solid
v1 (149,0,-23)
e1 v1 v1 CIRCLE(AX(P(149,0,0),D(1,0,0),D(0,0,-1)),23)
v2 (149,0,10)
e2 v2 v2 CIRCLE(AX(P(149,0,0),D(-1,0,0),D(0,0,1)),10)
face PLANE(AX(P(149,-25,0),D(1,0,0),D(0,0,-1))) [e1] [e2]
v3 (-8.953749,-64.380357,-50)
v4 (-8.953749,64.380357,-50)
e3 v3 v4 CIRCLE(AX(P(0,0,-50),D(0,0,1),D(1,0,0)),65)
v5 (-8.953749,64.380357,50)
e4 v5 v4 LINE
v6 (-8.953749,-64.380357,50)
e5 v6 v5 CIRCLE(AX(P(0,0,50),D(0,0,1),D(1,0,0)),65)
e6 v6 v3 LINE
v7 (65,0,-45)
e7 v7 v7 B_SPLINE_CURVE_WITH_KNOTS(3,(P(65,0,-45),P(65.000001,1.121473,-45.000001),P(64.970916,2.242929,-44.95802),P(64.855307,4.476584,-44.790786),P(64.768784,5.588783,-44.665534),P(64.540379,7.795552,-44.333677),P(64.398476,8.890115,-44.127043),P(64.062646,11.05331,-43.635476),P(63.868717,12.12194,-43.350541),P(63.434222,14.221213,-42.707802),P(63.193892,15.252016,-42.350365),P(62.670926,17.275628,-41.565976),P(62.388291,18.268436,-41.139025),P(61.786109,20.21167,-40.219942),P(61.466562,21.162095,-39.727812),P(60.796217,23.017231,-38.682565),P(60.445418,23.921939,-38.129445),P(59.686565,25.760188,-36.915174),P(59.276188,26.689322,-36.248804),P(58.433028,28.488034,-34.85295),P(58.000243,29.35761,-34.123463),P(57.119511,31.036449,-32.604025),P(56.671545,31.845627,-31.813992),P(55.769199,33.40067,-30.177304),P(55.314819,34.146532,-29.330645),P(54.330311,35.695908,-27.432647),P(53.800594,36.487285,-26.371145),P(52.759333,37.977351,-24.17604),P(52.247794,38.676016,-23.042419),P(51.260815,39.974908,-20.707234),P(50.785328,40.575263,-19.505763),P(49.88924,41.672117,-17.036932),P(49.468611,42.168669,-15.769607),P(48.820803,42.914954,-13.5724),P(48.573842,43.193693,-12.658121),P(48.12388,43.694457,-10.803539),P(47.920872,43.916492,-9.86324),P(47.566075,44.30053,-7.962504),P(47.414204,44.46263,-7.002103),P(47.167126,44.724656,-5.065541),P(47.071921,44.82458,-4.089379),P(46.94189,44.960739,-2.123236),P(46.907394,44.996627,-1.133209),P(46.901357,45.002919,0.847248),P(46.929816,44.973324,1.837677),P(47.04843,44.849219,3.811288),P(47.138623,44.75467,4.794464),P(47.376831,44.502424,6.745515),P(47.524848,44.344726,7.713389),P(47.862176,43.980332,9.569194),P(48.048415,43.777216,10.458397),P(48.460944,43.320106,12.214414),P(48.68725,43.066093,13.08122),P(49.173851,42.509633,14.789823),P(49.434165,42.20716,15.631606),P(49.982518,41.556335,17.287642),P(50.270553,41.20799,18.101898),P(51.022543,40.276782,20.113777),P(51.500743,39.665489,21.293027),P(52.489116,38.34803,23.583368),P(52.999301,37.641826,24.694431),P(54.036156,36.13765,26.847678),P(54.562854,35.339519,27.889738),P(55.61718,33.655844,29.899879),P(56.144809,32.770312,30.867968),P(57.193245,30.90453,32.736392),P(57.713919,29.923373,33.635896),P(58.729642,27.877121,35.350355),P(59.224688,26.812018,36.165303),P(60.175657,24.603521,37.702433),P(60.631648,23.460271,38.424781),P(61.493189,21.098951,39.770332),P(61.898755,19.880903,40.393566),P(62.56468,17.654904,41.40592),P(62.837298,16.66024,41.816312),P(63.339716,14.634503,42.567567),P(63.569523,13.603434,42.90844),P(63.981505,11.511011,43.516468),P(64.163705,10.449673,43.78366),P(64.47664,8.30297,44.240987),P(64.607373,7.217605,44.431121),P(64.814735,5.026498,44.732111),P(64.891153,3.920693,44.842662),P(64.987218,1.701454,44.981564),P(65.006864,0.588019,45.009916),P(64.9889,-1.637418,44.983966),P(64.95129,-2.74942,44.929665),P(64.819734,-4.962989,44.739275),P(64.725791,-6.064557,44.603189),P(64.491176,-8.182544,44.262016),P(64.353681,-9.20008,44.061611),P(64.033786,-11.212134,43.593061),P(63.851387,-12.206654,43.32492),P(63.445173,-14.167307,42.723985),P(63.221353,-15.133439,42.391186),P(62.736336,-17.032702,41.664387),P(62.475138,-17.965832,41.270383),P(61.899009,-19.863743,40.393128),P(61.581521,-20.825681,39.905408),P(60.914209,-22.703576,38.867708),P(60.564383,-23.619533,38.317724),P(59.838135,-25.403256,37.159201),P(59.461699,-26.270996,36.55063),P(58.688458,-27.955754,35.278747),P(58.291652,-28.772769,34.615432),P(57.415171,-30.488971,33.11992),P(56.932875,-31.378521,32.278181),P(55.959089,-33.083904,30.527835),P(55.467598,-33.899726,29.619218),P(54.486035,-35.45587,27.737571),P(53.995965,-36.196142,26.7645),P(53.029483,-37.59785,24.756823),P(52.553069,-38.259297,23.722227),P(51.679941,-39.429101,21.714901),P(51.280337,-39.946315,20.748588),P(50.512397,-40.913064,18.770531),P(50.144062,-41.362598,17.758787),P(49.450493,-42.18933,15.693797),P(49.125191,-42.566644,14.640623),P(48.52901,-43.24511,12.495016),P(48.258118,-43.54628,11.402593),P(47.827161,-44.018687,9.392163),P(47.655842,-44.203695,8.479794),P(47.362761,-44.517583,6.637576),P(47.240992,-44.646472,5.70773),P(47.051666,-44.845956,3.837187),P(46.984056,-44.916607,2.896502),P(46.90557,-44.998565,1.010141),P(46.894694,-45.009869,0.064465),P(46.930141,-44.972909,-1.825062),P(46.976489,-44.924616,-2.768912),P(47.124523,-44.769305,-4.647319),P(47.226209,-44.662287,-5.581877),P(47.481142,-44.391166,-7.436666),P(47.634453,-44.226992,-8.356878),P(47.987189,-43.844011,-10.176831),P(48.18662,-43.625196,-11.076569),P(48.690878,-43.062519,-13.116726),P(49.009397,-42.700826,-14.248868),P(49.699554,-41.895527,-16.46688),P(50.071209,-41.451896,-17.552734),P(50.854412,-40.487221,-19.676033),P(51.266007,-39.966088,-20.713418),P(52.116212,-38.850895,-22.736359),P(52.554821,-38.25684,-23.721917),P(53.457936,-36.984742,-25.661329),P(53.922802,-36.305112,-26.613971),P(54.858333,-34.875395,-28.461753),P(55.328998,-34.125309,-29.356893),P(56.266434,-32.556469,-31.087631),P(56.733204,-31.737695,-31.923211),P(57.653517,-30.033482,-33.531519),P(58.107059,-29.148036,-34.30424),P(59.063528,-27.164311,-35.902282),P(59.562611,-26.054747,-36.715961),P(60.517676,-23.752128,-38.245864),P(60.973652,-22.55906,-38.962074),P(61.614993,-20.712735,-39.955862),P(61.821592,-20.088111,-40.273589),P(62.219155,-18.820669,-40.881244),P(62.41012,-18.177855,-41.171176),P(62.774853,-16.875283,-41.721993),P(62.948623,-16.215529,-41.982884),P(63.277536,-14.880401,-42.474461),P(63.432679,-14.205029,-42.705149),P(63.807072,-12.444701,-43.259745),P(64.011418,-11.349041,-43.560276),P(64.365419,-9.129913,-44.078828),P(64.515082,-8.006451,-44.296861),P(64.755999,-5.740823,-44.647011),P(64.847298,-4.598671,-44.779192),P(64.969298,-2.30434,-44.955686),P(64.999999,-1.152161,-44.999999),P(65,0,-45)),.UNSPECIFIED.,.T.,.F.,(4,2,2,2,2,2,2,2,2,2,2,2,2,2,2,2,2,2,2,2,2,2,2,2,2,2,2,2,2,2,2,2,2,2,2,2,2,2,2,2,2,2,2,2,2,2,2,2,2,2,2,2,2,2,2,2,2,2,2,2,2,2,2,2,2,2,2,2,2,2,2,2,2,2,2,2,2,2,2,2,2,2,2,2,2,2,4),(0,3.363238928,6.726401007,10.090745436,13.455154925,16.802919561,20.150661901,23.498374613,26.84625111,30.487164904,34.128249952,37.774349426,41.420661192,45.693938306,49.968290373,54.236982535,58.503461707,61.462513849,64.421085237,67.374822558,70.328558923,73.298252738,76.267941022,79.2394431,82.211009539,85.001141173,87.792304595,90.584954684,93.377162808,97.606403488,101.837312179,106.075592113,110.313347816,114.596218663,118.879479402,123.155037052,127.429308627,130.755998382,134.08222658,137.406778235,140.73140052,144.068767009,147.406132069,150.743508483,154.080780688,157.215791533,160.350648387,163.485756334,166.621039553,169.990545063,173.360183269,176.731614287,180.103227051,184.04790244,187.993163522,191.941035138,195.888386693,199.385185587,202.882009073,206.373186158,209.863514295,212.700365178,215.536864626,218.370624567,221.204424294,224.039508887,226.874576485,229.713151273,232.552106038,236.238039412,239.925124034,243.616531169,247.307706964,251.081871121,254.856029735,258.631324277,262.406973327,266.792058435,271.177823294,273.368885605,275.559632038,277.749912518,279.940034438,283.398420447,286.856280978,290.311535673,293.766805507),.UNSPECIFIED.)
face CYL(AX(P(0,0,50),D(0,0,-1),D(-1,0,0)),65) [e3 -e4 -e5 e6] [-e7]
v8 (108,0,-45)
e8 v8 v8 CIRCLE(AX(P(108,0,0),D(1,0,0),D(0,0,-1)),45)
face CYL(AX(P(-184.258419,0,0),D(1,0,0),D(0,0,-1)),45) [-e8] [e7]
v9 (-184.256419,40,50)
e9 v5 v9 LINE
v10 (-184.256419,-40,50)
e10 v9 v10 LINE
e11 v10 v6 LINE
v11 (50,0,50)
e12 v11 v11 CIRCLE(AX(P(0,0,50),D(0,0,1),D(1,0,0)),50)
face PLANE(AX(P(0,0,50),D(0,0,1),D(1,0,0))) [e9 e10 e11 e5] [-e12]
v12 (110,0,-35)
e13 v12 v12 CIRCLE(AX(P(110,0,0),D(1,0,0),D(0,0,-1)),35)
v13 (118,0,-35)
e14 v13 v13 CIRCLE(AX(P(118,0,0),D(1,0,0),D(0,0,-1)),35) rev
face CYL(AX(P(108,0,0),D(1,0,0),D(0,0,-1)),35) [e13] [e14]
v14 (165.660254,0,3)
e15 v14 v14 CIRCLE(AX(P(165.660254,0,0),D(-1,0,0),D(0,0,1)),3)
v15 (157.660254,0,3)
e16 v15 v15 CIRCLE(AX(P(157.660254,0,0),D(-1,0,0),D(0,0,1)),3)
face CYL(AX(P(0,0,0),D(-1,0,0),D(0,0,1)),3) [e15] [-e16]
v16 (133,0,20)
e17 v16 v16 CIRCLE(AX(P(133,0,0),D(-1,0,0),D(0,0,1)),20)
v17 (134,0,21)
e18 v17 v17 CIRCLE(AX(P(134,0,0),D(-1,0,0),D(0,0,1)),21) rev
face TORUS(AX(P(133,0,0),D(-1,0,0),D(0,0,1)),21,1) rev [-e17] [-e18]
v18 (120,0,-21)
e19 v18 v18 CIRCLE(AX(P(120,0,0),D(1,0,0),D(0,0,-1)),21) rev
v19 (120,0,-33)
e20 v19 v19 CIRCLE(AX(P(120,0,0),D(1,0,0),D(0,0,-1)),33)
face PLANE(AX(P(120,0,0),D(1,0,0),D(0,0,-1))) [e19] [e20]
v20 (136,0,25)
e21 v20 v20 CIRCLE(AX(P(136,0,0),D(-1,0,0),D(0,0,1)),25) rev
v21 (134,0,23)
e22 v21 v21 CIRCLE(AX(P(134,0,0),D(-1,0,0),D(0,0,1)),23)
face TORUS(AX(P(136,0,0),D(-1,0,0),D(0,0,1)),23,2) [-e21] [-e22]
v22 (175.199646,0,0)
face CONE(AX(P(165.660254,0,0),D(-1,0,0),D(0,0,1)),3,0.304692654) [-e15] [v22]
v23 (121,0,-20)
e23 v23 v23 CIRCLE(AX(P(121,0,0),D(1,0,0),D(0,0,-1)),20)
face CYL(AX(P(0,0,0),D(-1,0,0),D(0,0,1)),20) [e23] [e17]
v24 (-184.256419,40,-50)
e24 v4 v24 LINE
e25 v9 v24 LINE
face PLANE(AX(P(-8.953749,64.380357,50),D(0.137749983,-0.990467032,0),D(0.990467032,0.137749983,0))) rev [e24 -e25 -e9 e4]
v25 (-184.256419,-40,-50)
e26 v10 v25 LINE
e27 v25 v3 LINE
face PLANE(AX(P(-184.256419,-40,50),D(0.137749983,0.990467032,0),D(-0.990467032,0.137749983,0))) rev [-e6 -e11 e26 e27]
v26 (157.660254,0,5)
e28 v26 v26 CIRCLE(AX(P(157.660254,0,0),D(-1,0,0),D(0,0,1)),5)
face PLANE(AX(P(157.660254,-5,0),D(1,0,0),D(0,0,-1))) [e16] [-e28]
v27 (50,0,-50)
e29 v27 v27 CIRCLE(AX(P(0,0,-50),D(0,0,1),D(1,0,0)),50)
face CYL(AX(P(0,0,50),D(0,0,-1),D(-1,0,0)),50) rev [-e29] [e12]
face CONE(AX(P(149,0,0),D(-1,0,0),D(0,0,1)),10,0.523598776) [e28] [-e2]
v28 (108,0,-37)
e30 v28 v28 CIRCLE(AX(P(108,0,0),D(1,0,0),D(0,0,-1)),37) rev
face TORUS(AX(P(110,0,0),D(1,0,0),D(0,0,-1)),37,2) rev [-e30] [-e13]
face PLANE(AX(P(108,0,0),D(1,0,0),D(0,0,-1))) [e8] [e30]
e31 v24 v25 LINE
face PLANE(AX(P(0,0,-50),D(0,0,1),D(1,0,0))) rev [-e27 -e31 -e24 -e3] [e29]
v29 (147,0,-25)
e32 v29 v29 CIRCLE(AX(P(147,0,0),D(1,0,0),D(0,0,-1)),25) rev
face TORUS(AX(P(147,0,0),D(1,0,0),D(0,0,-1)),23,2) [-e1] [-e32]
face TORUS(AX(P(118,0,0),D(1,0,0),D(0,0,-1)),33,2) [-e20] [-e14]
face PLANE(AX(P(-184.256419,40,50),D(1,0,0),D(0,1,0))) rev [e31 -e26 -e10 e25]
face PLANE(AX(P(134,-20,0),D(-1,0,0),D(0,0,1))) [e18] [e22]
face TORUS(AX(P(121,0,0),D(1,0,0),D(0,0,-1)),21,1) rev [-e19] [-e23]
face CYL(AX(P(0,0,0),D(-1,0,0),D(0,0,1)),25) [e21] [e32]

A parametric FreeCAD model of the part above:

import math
import FreeCAD as App
import Part
import Sketcher
Q = App.Units.Quantity


def edges_at(feature, points):
    """Names of the edges that pass closest to the given points."""
    edges = feature.Shape.Edges
    near = lambda p: min(range(len(edges)), key=lambda i: edges[i].distToShape(Part.Vertex(*p))[0])
    return sorted({f"Edge{near(p) + 1}" for p in points})

doc = App.newDocument("Part")
params = doc.addObject("Spreadsheet::Sheet", "Params")
for row, (alias, value) in enumerate([
    ("sketch1_diameter", "100 mm"),
    ("sketch1_radius", "65 mm"),
    ("sketch1_height", "80 mm"),
    ("pad1_length", "100 mm"),
    ("sketch2_diameter", "90 mm"),
    ("sketch3_width", "14 mm"),
    ("sketch3_width2", "15 mm"),
    ("sketch3_width3", "8 mm"),
    ("sketch3_height", "20 mm"),
    ("sketch3_height2", "5 mm"),
    ("revolution_angle", "360 deg"),
    ("sketch4_diameter", "90 mm"),
    ("sketch4_diameter2", "70 mm"),
    ("pocket1_length", "12 mm"),
    ("fillet_radius", "2 mm"),
    ("fillet2_radius", "1 mm"),
], start=1):
    params.set(f"A{row}", alias)
    params.set(f"B{row}", "=" + value)
    params.setAlias(f"B{row}", alias)

body = doc.addObject("PartDesign::Body", "Body")

# Sketch on XY plane
sketch1 = body.newObject("Sketcher::SketchObject", "Sketch")
sketch1.AttachmentSupport = (doc.getObject("XY_Plane"), [""])
sketch1.MapMode = "FlatFace"
sketch1.addGeometry([
    Part.LineSegment(App.Vector(-184, 40, 0), App.Vector(-184, -40, 0)),  # 0
    Part.LineSegment(App.Vector(-184, -40, 0), App.Vector(-9, -64, 0)),  # 1
    Part.ArcOfCircle(Part.Circle(App.Vector(0, 0, 0), App.Vector(0, 0, 1), 65), math.radians(-98), math.radians(98)),  # 2
    Part.LineSegment(App.Vector(-9, 64, 0), App.Vector(-184, 40, 0)),  # 3
    Part.Circle(App.Vector(0, 0, 0), App.Vector(0, 0, 1), 50),  # 4
], False)
sketch1.addConstraint([
    Sketcher.Constraint("Coincident", 0, 2, 1, 1),
    Sketcher.Constraint("Tangent", 1, 2, 2, 1),
    Sketcher.Constraint("Tangent", 2, 2, 3, 1),
    Sketcher.Constraint("Coincident", 3, 2, 0, 1),
    Sketcher.Constraint("Vertical", 0),
    Sketcher.Constraint("Coincident", 2, 3, -1, 1),
    Sketcher.Constraint("Coincident", 4, 3, -1, 1),
    Sketcher.Constraint("Vertical", 1, 2, 2, 2),
    Sketcher.Constraint("Diameter", 4, 100.0),
    Sketcher.Constraint("Radius", 2, 65.0),
    Sketcher.Constraint("DistanceY", 0, 2, 0, 1, 80.0),
    Sketcher.Constraint("Distance", 1, 176.989909),
])
sketch1.setExpression("Constraints[8]", "Params.sketch1_diameter")
sketch1.setExpression("Constraints[9]", "Params.sketch1_radius")
sketch1.setExpression("Constraints[10]", "Params.sketch1_height")
pad1 = body.newObject("PartDesign::Pad", "Pad")
pad1.Profile = sketch1
pad1.setExpression("Length", "Params.pad1_length")
pad1.Midplane = True

# Sketch on YZ plane
sketch2 = body.newObject("Sketcher::SketchObject", "Sketch001")
sketch2.AttachmentSupport = (doc.getObject("YZ_Plane"), [""])
sketch2.MapMode = "FlatFace"
sketch2.AttachmentOffset = App.Placement(App.Vector(0, 0, 120), App.Rotation())
sketch2.addGeometry(Part.Circle(App.Vector(0, 0, 0), App.Vector(0, 0, 1), 45), False)
sketch2.addConstraint([
    Sketcher.Constraint("Coincident", 0, 3, -1, 1),
    Sketcher.Constraint("Diameter", 0, 90.0),
])
sketch2.setExpression("Constraints[1]", "Params.sketch2_diameter")
pad2 = body.newObject("PartDesign::Pad", "Pad001")
pad2.Profile = sketch2
pad2.Type = "UpToFirst"
pad2.Reversed = True

# Sketch on XY plane
sketch3 = body.newObject("Sketcher::SketchObject", "Sketch002")
sketch3.AttachmentSupport = (doc.getObject("XY_Plane"), [""])
sketch3.MapMode = "FlatFace"
sketch3.addGeometry([
    Part.LineSegment(App.Vector(120, 0, 0), App.Vector(120, -20, 0)),  # 0
    Part.LineSegment(App.Vector(120, -20, 0), App.Vector(134, -20, 0)),  # 1
    Part.LineSegment(App.Vector(134, -20, 0), App.Vector(134, -25, 0)),  # 2
    Part.LineSegment(App.Vector(134, -25, 0), App.Vector(149, -25, 0)),  # 3
    Part.LineSegment(App.Vector(149, -25, 0), App.Vector(149, -10, 0)),  # 4
    Part.LineSegment(App.Vector(149, -10, 0), App.Vector(157.7, -5, 0)),  # 5
    Part.LineSegment(App.Vector(157.7, -5, 0), App.Vector(157.7, -3, 0)),  # 6
    Part.LineSegment(App.Vector(157.7, -3, 0), App.Vector(165.7, -3, 0)),  # 7
    Part.LineSegment(App.Vector(165.7, -3, 0), App.Vector(175.2, 0, 0)),  # 8
    Part.LineSegment(App.Vector(175.2, 0, 0), App.Vector(120, 0, 0)),  # 9
], False)
sketch3.addConstraint([
    Sketcher.Constraint("Coincident", 0, 2, 1, 1),
    Sketcher.Constraint("Coincident", 1, 2, 2, 1),
    Sketcher.Constraint("Coincident", 2, 2, 3, 1),
    Sketcher.Constraint("Coincident", 3, 2, 4, 1),
    Sketcher.Constraint("Coincident", 4, 2, 5, 1),
    Sketcher.Constraint("Coincident", 5, 2, 6, 1),
    Sketcher.Constraint("Coincident", 6, 2, 7, 1),
    Sketcher.Constraint("Coincident", 7, 2, 8, 1),
    Sketcher.Constraint("Coincident", 8, 2, 9, 1),
    Sketcher.Constraint("Coincident", 9, 2, 0, 1),
    Sketcher.Constraint("Vertical", 0),
    Sketcher.Constraint("Horizontal", 1),
    Sketcher.Constraint("Vertical", 2),
    Sketcher.Constraint("Horizontal", 3),
    Sketcher.Constraint("Vertical", 4),
    Sketcher.Constraint("Vertical", 6),
    Sketcher.Constraint("Horizontal", 7),
    Sketcher.Constraint("Horizontal", 9),
    Sketcher.Constraint("PointOnObject", 8, 2, -1),
    Sketcher.Constraint("Equal", 3, 4),
    Sketcher.Constraint("Equal", 5, 8),
    Sketcher.Constraint("DistanceX", 1, 1, 1, 2, 14.0),
    Sketcher.Constraint("DistanceX", 3, 1, 3, 2, 15.0),
    Sketcher.Constraint("DistanceX", 7, 1, 7, 2, 8.0),
    Sketcher.Constraint("DistanceY", 0, 2, 0, 1, 20.0),
    Sketcher.Constraint("DistanceY", 2, 2, 2, 1, 5.0),
    Sketcher.Constraint("DistanceY", 6, 1, 6, 2, 2.0),
    Sketcher.Constraint("Angle", 5, Q("30 deg")),
    Sketcher.Constraint("Distance", 5, 10.0),
    Sketcher.Constraint("DistanceX", -1, 1, 0, 2, 120.0),
])
sketch3.setExpression("Constraints[21]", "Params.sketch3_width")
sketch3.setExpression("Constraints[22]", "Params.sketch3_width2")
sketch3.setExpression("Constraints[23]", "Params.sketch3_width3")
sketch3.setExpression("Constraints[24]", "Params.sketch3_height")
sketch3.setExpression("Constraints[25]", "Params.sketch3_height2")
revolution = body.newObject("PartDesign::Revolution", "Revolution")
revolution.Profile = sketch3
revolution.ReferenceAxis = (sketch3, ["H_Axis"])
revolution.setExpression("Angle", "Params.revolution_angle")

# Sketch on YZ plane
sketch4 = body.newObject("Sketcher::SketchObject", "Sketch003")
sketch4.AttachmentSupport = (doc.getObject("YZ_Plane"), [""])
sketch4.MapMode = "FlatFace"
sketch4.AttachmentOffset = App.Placement(App.Vector(0, 0, 120), App.Rotation())
sketch4.addGeometry([
    Part.Circle(App.Vector(0, 0, 0), App.Vector(0, 0, 1), 45),
    Part.Circle(App.Vector(0, 0, 0), App.Vector(0, 0, 1), 35),
], False)
sketch4.addConstraint([
    Sketcher.Constraint("Coincident", 0, 3, -1, 1),
    Sketcher.Constraint("Coincident", 1, 3, -1, 1),
    Sketcher.Constraint("Diameter", 0, 90.0),
    Sketcher.Constraint("Diameter", 1, 70.0),
])
sketch4.setExpression("Constraints[2]", "Params.sketch4_diameter")
sketch4.setExpression("Constraints[3]", "Params.sketch4_diameter2")
pocket1 = body.newObject("PartDesign::Pocket", "Pocket")
pocket1.Profile = sketch4
pocket1.setExpression("Length", "Params.pocket1_length")
doc.recompute()

fillet = body.newObject("PartDesign::Fillet", "Fillet")
fillet.Base = (pocket1, edges_at(pocket1, [
    (134, 25, 0),
    (149, 25, 0),
    (108, 0, 35),
    (120, 0, 35),
]))
fillet.setExpression("Radius", "Params.fillet_radius")
doc.recompute()

fillet2 = body.newObject("PartDesign::Fillet", "Fillet001")
fillet2.Base = (fillet, edges_at(fillet, [(120, 20, 0), (134, 20, 0)]))
fillet2.setExpression("Radius", "Params.fillet2_radius")

doc.recompute()
